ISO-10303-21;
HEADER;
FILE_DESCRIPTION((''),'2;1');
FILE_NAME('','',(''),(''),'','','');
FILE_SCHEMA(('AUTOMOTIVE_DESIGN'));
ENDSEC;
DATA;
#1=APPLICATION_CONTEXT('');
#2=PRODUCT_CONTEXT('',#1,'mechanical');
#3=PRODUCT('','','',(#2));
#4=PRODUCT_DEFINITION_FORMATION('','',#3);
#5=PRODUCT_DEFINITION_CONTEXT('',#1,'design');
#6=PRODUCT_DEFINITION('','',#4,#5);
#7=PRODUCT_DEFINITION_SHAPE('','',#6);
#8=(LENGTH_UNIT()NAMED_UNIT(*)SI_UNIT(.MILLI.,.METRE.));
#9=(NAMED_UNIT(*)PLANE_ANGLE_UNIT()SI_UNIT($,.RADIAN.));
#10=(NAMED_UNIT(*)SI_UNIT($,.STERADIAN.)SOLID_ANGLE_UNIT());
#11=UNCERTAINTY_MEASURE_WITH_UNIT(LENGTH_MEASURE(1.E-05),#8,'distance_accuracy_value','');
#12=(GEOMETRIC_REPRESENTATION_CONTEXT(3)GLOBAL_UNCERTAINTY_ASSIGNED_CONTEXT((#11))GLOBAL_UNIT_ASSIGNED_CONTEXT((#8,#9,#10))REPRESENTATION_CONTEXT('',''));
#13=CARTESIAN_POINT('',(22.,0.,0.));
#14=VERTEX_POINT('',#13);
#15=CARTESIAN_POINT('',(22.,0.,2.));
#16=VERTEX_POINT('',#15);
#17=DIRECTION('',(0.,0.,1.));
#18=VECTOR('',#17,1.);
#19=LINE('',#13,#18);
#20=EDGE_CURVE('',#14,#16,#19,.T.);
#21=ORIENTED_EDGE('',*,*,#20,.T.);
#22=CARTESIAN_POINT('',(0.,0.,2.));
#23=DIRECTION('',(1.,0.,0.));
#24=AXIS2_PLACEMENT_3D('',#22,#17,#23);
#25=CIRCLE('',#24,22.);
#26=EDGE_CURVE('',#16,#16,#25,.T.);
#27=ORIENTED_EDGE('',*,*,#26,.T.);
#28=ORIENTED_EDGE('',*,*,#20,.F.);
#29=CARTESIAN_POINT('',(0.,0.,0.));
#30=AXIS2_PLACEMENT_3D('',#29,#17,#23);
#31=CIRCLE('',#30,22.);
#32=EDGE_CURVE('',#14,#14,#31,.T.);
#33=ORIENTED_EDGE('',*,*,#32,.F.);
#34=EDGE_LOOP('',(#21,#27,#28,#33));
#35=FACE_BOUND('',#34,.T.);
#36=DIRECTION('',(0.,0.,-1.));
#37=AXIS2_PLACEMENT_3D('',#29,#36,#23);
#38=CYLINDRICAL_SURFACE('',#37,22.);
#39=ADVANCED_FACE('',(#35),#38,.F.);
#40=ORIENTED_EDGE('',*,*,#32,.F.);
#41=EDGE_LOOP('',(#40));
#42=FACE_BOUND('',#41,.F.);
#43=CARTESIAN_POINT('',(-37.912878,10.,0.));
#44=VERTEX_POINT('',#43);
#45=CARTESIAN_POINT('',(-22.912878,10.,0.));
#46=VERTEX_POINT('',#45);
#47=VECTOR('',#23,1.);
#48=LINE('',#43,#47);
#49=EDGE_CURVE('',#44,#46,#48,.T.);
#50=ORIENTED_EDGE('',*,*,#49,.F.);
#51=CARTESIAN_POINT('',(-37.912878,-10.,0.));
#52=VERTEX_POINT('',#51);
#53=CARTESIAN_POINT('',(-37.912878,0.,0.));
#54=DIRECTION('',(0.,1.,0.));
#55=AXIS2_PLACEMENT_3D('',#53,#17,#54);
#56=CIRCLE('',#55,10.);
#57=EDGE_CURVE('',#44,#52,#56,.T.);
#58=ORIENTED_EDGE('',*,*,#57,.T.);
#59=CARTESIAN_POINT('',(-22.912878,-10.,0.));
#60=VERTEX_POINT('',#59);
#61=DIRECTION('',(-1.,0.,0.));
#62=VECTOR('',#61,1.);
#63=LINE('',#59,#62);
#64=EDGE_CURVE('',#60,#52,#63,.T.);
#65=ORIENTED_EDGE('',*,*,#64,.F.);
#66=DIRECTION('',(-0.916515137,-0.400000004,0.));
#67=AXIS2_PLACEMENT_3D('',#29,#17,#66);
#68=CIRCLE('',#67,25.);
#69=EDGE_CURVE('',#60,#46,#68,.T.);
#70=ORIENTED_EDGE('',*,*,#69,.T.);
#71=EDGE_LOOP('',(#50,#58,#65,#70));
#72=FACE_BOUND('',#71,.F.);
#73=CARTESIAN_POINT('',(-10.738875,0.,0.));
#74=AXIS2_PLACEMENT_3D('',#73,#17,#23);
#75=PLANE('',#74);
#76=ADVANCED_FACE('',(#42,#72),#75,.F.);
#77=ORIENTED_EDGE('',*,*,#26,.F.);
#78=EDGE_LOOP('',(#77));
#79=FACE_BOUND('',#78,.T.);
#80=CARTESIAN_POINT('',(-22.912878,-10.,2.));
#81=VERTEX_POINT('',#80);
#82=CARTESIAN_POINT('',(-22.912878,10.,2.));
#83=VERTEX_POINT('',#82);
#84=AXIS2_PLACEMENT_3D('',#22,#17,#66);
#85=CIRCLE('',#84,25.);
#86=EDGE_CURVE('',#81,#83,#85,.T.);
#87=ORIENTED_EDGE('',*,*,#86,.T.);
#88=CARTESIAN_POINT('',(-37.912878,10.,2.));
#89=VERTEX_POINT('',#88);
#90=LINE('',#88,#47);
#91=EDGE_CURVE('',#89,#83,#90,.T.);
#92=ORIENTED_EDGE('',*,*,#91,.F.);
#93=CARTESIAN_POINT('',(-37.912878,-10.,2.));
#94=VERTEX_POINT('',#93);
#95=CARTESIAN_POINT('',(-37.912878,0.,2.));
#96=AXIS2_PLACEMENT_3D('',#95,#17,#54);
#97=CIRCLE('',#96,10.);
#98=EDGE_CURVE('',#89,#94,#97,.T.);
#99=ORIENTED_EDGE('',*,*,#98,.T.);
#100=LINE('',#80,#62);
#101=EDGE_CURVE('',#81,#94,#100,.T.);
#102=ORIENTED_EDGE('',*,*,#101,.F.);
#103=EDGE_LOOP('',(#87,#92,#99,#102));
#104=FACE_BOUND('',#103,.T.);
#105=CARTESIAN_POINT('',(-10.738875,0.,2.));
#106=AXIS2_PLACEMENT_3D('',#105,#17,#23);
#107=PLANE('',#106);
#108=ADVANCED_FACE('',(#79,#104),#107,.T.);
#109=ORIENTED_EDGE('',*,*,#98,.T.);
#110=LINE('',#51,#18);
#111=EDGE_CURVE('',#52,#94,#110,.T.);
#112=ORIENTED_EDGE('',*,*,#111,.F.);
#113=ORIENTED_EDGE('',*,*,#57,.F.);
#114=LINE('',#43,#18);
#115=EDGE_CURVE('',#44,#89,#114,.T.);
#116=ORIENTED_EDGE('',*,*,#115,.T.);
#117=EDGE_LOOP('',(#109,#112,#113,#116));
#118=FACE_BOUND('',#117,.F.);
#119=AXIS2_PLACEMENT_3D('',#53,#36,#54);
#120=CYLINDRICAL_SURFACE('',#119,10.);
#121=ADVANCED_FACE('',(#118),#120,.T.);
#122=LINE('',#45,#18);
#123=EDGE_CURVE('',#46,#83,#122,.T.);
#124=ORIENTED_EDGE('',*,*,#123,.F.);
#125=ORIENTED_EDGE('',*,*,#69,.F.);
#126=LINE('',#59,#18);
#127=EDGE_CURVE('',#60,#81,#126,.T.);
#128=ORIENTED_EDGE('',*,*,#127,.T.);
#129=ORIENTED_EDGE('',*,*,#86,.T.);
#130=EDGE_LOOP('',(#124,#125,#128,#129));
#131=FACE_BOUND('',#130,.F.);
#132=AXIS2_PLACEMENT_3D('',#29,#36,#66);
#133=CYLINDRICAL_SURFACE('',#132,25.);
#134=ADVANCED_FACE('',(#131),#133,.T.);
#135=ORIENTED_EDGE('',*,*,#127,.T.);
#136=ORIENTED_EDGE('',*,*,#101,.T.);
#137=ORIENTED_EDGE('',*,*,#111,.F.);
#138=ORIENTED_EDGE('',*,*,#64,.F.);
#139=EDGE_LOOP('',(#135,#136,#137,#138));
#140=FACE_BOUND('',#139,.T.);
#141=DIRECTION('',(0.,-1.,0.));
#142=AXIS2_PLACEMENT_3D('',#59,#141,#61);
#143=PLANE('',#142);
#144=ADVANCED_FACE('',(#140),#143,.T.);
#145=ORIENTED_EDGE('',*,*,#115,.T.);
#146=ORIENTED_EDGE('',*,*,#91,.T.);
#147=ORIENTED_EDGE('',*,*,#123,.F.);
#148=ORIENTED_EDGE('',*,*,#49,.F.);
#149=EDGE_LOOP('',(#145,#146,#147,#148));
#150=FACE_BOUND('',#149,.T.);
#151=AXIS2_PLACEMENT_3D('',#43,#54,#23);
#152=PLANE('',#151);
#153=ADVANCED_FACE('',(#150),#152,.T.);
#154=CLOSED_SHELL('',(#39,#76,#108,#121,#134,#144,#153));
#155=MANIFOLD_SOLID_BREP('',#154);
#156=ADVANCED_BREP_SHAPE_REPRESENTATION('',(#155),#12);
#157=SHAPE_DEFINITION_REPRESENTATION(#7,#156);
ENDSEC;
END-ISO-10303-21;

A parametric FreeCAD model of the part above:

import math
import FreeCAD as App
import Part
import Sketcher
Q = App.Units.Quantity

doc = App.newDocument("Part")
body = doc.addObject("PartDesign::Body", "Body")

# Sketch on XY plane
sketch1 = body.newObject("Sketcher::SketchObject", "Sketch")
sketch1.AttachmentSupport = (doc.getObject("XY_Plane"), [""])
sketch1.MapMode = "FlatFace"
sketch1.addGeometry(Part.ArcOfCircle(Part.Circle(App.Vector(0, 0, 0), App.Vector(0, 0, 1), 25), math.radians(-156), math.radians(156)), False)
sketch1.addGeometry(Part.LineSegment(App.Vector(-23, 10, 0), App.Vector(-38, 10, 0)), False)
sketch1.addGeometry(Part.ArcOfCircle(Part.Circle(App.Vector(-38, 0, 0), App.Vector(0, 0, 1), 10), math.radians(90), math.radians(270)), False)
sketch1.addGeometry(Part.LineSegment(App.Vector(-38, -10, 0), App.Vector(-23, -10, 0)), False)
sketch1.addGeometry(Part.Circle(App.Vector(0, 0, 0), App.Vector(0, 0, 1), 22), False)
sketch1.addConstraint(Sketcher.Constraint("Coincident", 0, 2, 1, 1))
sketch1.addConstraint(Sketcher.Constraint("Tangent", 1, 2, 2, 1))
sketch1.addConstraint(Sketcher.Constraint("Tangent", 2, 2, 3, 1))
sketch1.addConstraint(Sketcher.Constraint("Coincident", 3, 2, 0, 1))
sketch1.addConstraint(Sketcher.Constraint("Horizontal", 1))
sketch1.addConstraint(Sketcher.Constraint("Horizontal", 3))
sketch1.addConstraint(Sketcher.Constraint("Coincident", 0, 3, -1, 1))
sketch1.addConstraint(Sketcher.Constraint("Coincident", 4, 3, -1, 1))
sketch1.addConstraint(Sketcher.Constraint("PointOnObject", 2, 3, -1))
sketch1.addConstraint(Sketcher.Constraint("Diameter", 4, Q("44 mm")))
sketch1.addConstraint(Sketcher.Constraint("Radius", 0, Q("25 mm")))
sketch1.addConstraint(Sketcher.Constraint("Radius", 2, Q("10 mm")))
sketch1.addConstraint(Sketcher.Constraint("DistanceX", 1, 2, 1, 1, Q("15 mm")))
pad1 = body.newObject("PartDesign::Pad", "Pad")
pad1.Profile = sketch1
pad1.Length = 2

doc.recompute()
